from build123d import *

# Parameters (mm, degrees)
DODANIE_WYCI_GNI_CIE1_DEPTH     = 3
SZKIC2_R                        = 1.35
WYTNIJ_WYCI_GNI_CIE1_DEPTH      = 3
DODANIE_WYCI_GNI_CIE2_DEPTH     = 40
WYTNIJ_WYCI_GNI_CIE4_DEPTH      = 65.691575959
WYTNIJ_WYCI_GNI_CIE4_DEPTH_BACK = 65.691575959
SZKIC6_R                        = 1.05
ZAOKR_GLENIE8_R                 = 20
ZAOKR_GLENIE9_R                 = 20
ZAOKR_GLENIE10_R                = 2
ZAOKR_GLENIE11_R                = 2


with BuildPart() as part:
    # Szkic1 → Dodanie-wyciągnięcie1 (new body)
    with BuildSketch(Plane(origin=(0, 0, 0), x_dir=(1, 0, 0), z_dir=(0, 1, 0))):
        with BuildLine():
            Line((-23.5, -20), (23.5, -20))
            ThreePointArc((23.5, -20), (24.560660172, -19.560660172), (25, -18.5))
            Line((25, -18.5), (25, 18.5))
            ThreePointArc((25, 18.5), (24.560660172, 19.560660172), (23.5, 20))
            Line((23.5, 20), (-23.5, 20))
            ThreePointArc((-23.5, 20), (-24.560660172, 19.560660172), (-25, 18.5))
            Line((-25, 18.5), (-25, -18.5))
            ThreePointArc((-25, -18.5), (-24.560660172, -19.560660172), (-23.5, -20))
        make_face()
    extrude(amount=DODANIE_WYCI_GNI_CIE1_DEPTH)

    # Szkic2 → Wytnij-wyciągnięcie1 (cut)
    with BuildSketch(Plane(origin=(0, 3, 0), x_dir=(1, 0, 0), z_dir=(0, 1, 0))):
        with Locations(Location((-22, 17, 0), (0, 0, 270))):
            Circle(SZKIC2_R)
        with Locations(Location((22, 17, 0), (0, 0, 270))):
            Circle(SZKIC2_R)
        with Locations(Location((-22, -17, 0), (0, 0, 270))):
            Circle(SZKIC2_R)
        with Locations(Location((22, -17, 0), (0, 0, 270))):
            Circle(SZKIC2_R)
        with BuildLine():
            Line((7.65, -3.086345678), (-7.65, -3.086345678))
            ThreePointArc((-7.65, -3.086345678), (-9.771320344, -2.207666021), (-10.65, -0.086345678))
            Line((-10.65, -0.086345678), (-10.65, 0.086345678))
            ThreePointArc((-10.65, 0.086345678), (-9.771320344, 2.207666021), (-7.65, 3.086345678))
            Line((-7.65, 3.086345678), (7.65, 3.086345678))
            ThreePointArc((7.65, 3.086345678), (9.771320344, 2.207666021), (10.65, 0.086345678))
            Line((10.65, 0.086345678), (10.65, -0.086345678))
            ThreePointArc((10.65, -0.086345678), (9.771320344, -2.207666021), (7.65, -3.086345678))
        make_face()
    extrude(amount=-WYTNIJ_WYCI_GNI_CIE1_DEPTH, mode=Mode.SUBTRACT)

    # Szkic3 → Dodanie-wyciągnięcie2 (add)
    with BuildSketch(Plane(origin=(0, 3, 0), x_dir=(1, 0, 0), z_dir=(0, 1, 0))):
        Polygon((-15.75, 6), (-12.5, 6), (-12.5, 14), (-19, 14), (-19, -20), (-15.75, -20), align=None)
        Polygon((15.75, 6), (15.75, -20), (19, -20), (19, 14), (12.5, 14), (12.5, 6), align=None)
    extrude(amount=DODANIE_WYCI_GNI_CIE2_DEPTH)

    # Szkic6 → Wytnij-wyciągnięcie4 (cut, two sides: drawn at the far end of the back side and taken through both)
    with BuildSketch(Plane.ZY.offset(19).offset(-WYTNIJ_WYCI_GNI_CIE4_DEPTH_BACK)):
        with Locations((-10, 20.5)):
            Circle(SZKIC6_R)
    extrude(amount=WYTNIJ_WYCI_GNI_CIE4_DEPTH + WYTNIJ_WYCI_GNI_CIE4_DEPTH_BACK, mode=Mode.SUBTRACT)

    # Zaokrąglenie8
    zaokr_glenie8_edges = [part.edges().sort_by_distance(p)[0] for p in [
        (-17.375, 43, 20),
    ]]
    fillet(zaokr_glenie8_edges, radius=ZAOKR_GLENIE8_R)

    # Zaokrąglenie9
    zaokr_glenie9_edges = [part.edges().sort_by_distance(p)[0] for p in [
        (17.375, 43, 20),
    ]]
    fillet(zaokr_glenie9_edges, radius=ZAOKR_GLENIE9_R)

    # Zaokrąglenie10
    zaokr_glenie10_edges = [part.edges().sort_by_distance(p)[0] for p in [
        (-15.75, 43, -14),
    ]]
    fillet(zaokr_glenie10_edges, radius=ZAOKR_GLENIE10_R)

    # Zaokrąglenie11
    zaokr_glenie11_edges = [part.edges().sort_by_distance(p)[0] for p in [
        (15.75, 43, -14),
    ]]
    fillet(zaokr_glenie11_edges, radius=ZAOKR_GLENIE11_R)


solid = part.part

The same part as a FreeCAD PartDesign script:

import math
import FreeCAD as App
import Part
import Sketcher

V = App.Vector


def edges_at(feature, points):
    """Names of the edges that pass closest to the given points."""
    edges = feature.Shape.Edges
    near = lambda p: min(range(len(edges)), key=lambda i: edges[i].distToShape(Part.Vertex(*p))[0])
    return sorted({f"Edge{near(p) + 1}" for p in points})

doc = App.newDocument("Part")
body = doc.addObject("PartDesign::Body", "Body")

# Sketch on XZ plane
sketch1 = body.newObject("Sketcher::SketchObject", "Sketch")
sketch1.AttachmentSupport = (doc.getObject("XZ_Plane"), [""])
sketch1.MapMode = "FlatFace"
sketch1.addGeometry([
    Part.LineSegment(V(-23.5, 20, 0), V(23.5, 20, 0)),  # 0
    Part.ArcOfCircle(Part.Circle(V(23.5, 18.5, 0), V(0, 0, 1), 1.5), math.radians(0), math.radians(90)),  # 1
    Part.LineSegment(V(25, 18.5, 0), V(25, -18.5, 0)),  # 2
    Part.ArcOfCircle(Part.Circle(V(23.5, -18.5, 0), V(0, 0, 1), 1.5), math.radians(-90), math.radians(0)),  # 3
    Part.LineSegment(V(23.5, -20, 0), V(-23.5, -20, 0)),  # 4
    Part.ArcOfCircle(Part.Circle(V(-23.5, -18.5, 0), V(0, 0, 1), 1.5), math.radians(180), math.radians(270)),  # 5
    Part.LineSegment(V(-25, -18.5, 0), V(-25, 18.5, 0)),  # 6
    Part.ArcOfCircle(Part.Circle(V(-23.5, 18.5, 0), V(0, 0, 1), 1.5), math.radians(90), math.radians(180)),  # 7
], False)
sketch1.addConstraint([
    Sketcher.Constraint("Tangent", 0, 2, 1, 2),
    Sketcher.Constraint("Tangent", 1, 1, 2, 1),
    Sketcher.Constraint("Tangent", 2, 2, 3, 2),
    Sketcher.Constraint("Tangent", 3, 1, 4, 1),
    Sketcher.Constraint("Tangent", 4, 2, 5, 2),
    Sketcher.Constraint("Tangent", 5, 1, 6, 1),
    Sketcher.Constraint("Tangent", 6, 2, 7, 2),
    Sketcher.Constraint("Tangent", 7, 1, 0, 1),
    Sketcher.Constraint("Horizontal", 0),
    Sketcher.Constraint("Vertical", 2),
    Sketcher.Constraint("Horizontal", 4),
    Sketcher.Constraint("Vertical", 6),
    Sketcher.Constraint("Equal", 1, 3),
    Sketcher.Constraint("Equal", 3, 5),
    Sketcher.Constraint("Equal", 5, 7),
    Sketcher.Constraint("Symmetric", 1, 3, 5, 3, -1, 1),
    Sketcher.Constraint("Radius", 1, 1.5),
    Sketcher.Constraint("DistanceX", 0, 1, 0, 2, 47.0),
    Sketcher.Constraint("DistanceY", 2, 2, 2, 1, 37.0),
])
pad1 = body.newObject("PartDesign::Pad", "Pad")
pad1.Profile = sketch1
pad1.Length = 3
pad1.Reversed = True

# Sketch on XZ plane
sketch2 = body.newObject("Sketcher::SketchObject", "Sketch001")
sketch2.AttachmentSupport = (doc.getObject("XZ_Plane"), [""])
sketch2.MapMode = "FlatFace"
sketch2.AttachmentOffset = App.Placement(V(0, 0, -3), App.Rotation())
sketch2.addGeometry([
    Part.Circle(V(-22, -17, 0), V(0, 0, 1), 1.35),  # 0
    Part.Circle(V(22, -17, 0), V(0, 0, 1), 1.35),  # 1
    Part.Circle(V(-22, 17, 0), V(0, 0, 1), 1.35),  # 2
    Part.Circle(V(22, 17, 0), V(0, 0, 1), 1.35),  # 3
    Part.LineSegment(V(-7.65, 3.09, 0), V(7.65, 3.09, 0)),  # 4
    Part.ArcOfCircle(Part.Circle(V(7.65, 0.09, 0), V(0, 0, 1), 3), math.radians(0), math.radians(90)),  # 5
    Part.LineSegment(V(10.65, 0.09, 0), V(10.65, -0.09, 0)),  # 6
    Part.ArcOfCircle(Part.Circle(V(7.65, -0.09, 0), V(0, 0, 1), 3), math.radians(-90), math.radians(0)),  # 7
    Part.LineSegment(V(7.65, -3.09, 0), V(-7.65, -3.09, 0)),  # 8
    Part.ArcOfCircle(Part.Circle(V(-7.65, -0.09, 0), V(0, 0, 1), 3), math.radians(180), math.radians(270)),  # 9
    Part.LineSegment(V(-10.65, -0.09, 0), V(-10.65, 0.09, 0)),  # 10
    Part.ArcOfCircle(Part.Circle(V(-7.65, 0.09, 0), V(0, 0, 1), 3), math.radians(90), math.radians(180)),  # 11
], False)
sketch2.addConstraint([
    Sketcher.Constraint("Tangent", 4, 2, 5, 2),
    Sketcher.Constraint("Tangent", 5, 1, 6, 1),
    Sketcher.Constraint("Tangent", 6, 2, 7, 2),
    Sketcher.Constraint("Tangent", 7, 1, 8, 1),
    Sketcher.Constraint("Tangent", 8, 2, 9, 2),
    Sketcher.Constraint("Tangent", 9, 1, 10, 1),
    Sketcher.Constraint("Tangent", 10, 2, 11, 2),
    Sketcher.Constraint("Tangent", 11, 1, 4, 1),
    Sketcher.Constraint("Horizontal", 4),
    Sketcher.Constraint("Vertical", 6),
    Sketcher.Constraint("Horizontal", 8),
    Sketcher.Constraint("Vertical", 10),
    Sketcher.Constraint("Equal", 0, 1),
    Sketcher.Constraint("Equal", 1, 2),
    Sketcher.Constraint("Equal", 2, 3),
    Sketcher.Constraint("Equal", 5, 7),
    Sketcher.Constraint("Equal", 7, 9),
    Sketcher.Constraint("Equal", 9, 11),
    Sketcher.Constraint("Symmetric", 1, 3, 2, 3, -1, 1),
    Sketcher.Constraint("Symmetric", 0, 3, 3, 3, -1, 1),
    Sketcher.Constraint("Symmetric", 5, 3, 9, 3, -1, 1),
    Sketcher.Constraint("Symmetric", 0, 3, 1, 3, -2),
    Sketcher.Constraint("Radius", 5, 3.0),
    Sketcher.Constraint("Diameter", 0, 2.7),
    Sketcher.Constraint("DistanceX", 4, 1, 4, 2, 15.3),
    Sketcher.Constraint("DistanceX", 0, 3, -1, 1, 22.0),
    Sketcher.Constraint("DistanceY", 0, 3, -1, 1, 17.0),
    Sketcher.Constraint("DistanceY", 6, 2, 6, 1, 0.172691),
])
pocket1 = body.newObject("PartDesign::Pocket", "Pocket")
pocket1.Profile = sketch2
pocket1.Length = 3
pocket1.Reversed = True

# Sketch on XZ plane
sketch3 = body.newObject("Sketcher::SketchObject", "Sketch002")
sketch3.AttachmentSupport = (doc.getObject("XZ_Plane"), [""])
sketch3.MapMode = "FlatFace"
sketch3.AttachmentOffset = App.Placement(V(0, 0, -3), App.Rotation())
sketch3.addGeometry([
    Part.LineSegment(V(-15.8, -6, 0), V(-12.5, -6, 0)),  # 0
    Part.LineSegment(V(-12.5, -6, 0), V(-12.5, -14, 0)),  # 1
    Part.LineSegment(V(-12.5, -14, 0), V(-19, -14, 0)),  # 2
    Part.LineSegment(V(-19, -14, 0), V(-19, 20, 0)),  # 3
    Part.LineSegment(V(-19, 20, 0), V(-15.8, 20, 0)),  # 4
    Part.LineSegment(V(-15.8, 20, 0), V(-15.8, -6, 0)),  # 5
    Part.LineSegment(V(15.8, -6, 0), V(15.8, 20, 0)),  # 6
    Part.LineSegment(V(15.8, 20, 0), V(19, 20, 0)),  # 7
    Part.LineSegment(V(19, 20, 0), V(19, -14, 0)),  # 8
    Part.LineSegment(V(19, -14, 0), V(12.5, -14, 0)),  # 9
    Part.LineSegment(V(12.5, -14, 0), V(12.5, -6, 0)),  # 10
    Part.LineSegment(V(12.5, -6, 0), V(15.8, -6, 0)),  # 11
], False)
sketch3.addConstraint([
    Sketcher.Constraint("Coincident", 0, 2, 1, 1),
    Sketcher.Constraint("Coincident", 1, 2, 2, 1),
    Sketcher.Constraint("Coincident", 2, 2, 3, 1),
    Sketcher.Constraint("Coincident", 3, 2, 4, 1),
    Sketcher.Constraint("Coincident", 4, 2, 5, 1),
    Sketcher.Constraint("Coincident", 5, 2, 0, 1),
    Sketcher.Constraint("Coincident", 6, 2, 7, 1),
    Sketcher.Constraint("Coincident", 7, 2, 8, 1),
    Sketcher.Constraint("Coincident", 8, 2, 9, 1),
    Sketcher.Constraint("Coincident", 9, 2, 10, 1),
    Sketcher.Constraint("Coincident", 10, 2, 11, 1),
    Sketcher.Constraint("Coincident", 11, 2, 6, 1),
    Sketcher.Constraint("Horizontal", 0),
    Sketcher.Constraint("Vertical", 1),
    Sketcher.Constraint("Horizontal", 2),
    Sketcher.Constraint("Vertical", 3),
    Sketcher.Constraint("Horizontal", 4),
    Sketcher.Constraint("Vertical", 5),
    Sketcher.Constraint("Vertical", 6),
    Sketcher.Constraint("Horizontal", 7),
    Sketcher.Constraint("Vertical", 8),
    Sketcher.Constraint("Horizontal", 9),
    Sketcher.Constraint("Vertical", 10),
    Sketcher.Constraint("Horizontal", 11),
    Sketcher.Constraint("Symmetric", 4, 2, 6, 2, -2),
    Sketcher.Constraint("Symmetric", 2, 2, 8, 2, -2),
    Sketcher.Constraint("Symmetric", 0, 2, 10, 2, -2),
    Sketcher.Constraint("Equal", 0, 4),
    Sketcher.Constraint("DistanceY", 1, 2, 1, 1, 8.0),
    Sketcher.Constraint("DistanceY", 3, 1, 3, 2, 34.0),
    Sketcher.Constraint("DistanceX", 2, 2, 2, 1, 6.5),
    Sketcher.Constraint("DistanceY", 0, 2, -1, 1, 6.0),
    Sketcher.Constraint("DistanceX", 2, 2, -1, 1, 19.0),
])
pad2 = body.newObject("PartDesign::Pad", "Pad001")
pad2.Profile = sketch3
pad2.Length = 40
pad2.Reversed = True

# Sketch on YZ plane
sketch4 = body.newObject("Sketcher::SketchObject", "Sketch003")
sketch4.AttachmentSupport = (doc.getObject("YZ_Plane"), [""])
sketch4.MapMode = "FlatFace"
sketch4.AttachmentOffset = App.Placement(V(0, 0, -19), App.Rotation())
sketch4.addGeometry(Part.Circle(V(20.5, -10, 0), V(0, 0, 1), 1.1), False)
sketch4.addConstraint([
    Sketcher.Constraint("Diameter", 0, 2.1),
    Sketcher.Constraint("DistanceY", 0, 3, -1, 1, 10.0),
    Sketcher.Constraint("DistanceX", -1, 1, 0, 3, 20.5),
])
pocket2 = body.newObject("PartDesign::Pocket", "Pocket001")
pocket2.Profile = sketch4
pocket2.Type = "ThroughAll"
pocket2.Midplane = True
doc.recompute()

fillet = body.newObject("PartDesign::Fillet", "Fillet")
fillet.Base = (pocket2, edges_at(pocket2, [(-17.375, 43, 20)]))
fillet.Radius = 20
doc.recompute()

fillet2 = body.newObject("PartDesign::Fillet", "Fillet001")
fillet2.Base = (fillet, edges_at(fillet, [(17.375, 43, 20)]))
fillet2.Radius = 20
doc.recompute()

fillet3 = body.newObject("PartDesign::Fillet", "Fillet002")
fillet3.Base = (fillet2, edges_at(fillet2, [(-15.75, 43, -14)]))
fillet3.Radius = 2
doc.recompute()

fillet4 = body.newObject("PartDesign::Fillet", "Fillet003")
fillet4.Base = (fillet3, edges_at(fillet3, [(15.75, 43, -14)]))
fillet4.Radius = 2

doc.recompute()
